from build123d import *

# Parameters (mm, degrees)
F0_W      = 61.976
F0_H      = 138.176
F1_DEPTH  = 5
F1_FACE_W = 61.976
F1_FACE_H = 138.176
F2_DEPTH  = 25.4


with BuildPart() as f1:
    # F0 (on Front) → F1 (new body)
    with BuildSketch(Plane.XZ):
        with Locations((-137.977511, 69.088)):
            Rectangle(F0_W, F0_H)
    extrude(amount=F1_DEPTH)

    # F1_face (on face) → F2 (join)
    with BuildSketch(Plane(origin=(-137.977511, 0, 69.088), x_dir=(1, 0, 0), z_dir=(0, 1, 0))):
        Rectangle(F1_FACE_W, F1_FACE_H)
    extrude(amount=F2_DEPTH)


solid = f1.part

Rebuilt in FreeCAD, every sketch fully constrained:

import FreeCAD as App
import Part
import Sketcher
from FreeCAD import Vector
Q = App.Units.Quantity

doc = App.newDocument("Part")
body = doc.addObject("PartDesign::Body", "Body")

# Sketch on XZ plane
sketch1 = doc.addObject("Sketcher::SketchObject", "Sketch")
body.addObject(sketch1)
sketch1.AttachmentSupport = (doc.XZ_Plane, [""])
sketch1.MapMode = "FlatFace"
sketch1.addGeometry(Part.LineSegment(Vector(-169, 138, 0), Vector(-169, 0, 0)), False)
sketch1.addGeometry(Part.LineSegment(Vector(-169, 0, 0), Vector(-107, 0, 0)), False)
sketch1.addGeometry(Part.LineSegment(Vector(-107, 0, 0), Vector(-107, 138, 0)), False)
sketch1.addGeometry(Part.LineSegment(Vector(-107, 138, 0), Vector(-169, 138, 0)), False)
sketch1.addConstraint(Sketcher.Constraint("Coincident", 0, 2, 1, 1))
sketch1.addConstraint(Sketcher.Constraint("Coincident", 1, 2, 2, 1))
sketch1.addConstraint(Sketcher.Constraint("Coincident", 2, 2, 3, 1))
sketch1.addConstraint(Sketcher.Constraint("Coincident", 3, 2, 0, 1))
sketch1.addConstraint(Sketcher.Constraint("Vertical", 0))
sketch1.addConstraint(Sketcher.Constraint("Horizontal", 1))
sketch1.addConstraint(Sketcher.Constraint("Vertical", 2))
sketch1.addConstraint(Sketcher.Constraint("Horizontal", 3))
sketch1.addConstraint(Sketcher.Constraint("PointOnObject", 0, 2, -1))
sketch1.addConstraint(Sketcher.Constraint("DistanceX", 1, 1, 1, 2, Q("2.44 in")))
sketch1.addConstraint(Sketcher.Constraint("DistanceY", 0, 2, 0, 1, Q("5.44 in")))
sketch1.addConstraint(Sketcher.Constraint("DistanceX", 0, 2, -1, 1, Q("168.965511 mm")))
pad1 = doc.addObject("PartDesign::Pad", "Pad")
body.addObject(pad1)
pad1.Profile = sketch1
pad1.Length = 5

# Sketch on XZ plane
sketch2 = doc.addObject("Sketcher::SketchObject", "Sketch001")
body.addObject(sketch2)
sketch2.AttachmentSupport = (doc.XZ_Plane, [""])
sketch2.MapMode = "FlatFace"
sketch2.addGeometry(Part.LineSegment(Vector(-169, 0, 0), Vector(-169, 138, 0)), False)
sketch2.addGeometry(Part.LineSegment(Vector(-169, 138, 0), Vector(-107, 138, 0)), False)
sketch2.addGeometry(Part.LineSegment(Vector(-107, 138, 0), Vector(-107, 0, 0)), False)
sketch2.addGeometry(Part.LineSegment(Vector(-107, 0, 0), Vector(-169, 0, 0)), False)
sketch2.addConstraint(Sketcher.Constraint("Coincident", 0, 2, 1, 1))
sketch2.addConstraint(Sketcher.Constraint("Coincident", 1, 2, 2, 1))
sketch2.addConstraint(Sketcher.Constraint("Coincident", 2, 2, 3, 1))
sketch2.addConstraint(Sketcher.Constraint("Coincident", 3, 2, 0, 1))
sketch2.addConstraint(Sketcher.Constraint("Vertical", 0))
sketch2.addConstraint(Sketcher.Constraint("Horizontal", 1))
sketch2.addConstraint(Sketcher.Constraint("Vertical", 2))
sketch2.addConstraint(Sketcher.Constraint("Horizontal", 3))
sketch2.addConstraint(Sketcher.Constraint("PointOnObject", 2, 2, -1))
sketch2.addConstraint(Sketcher.Constraint("DistanceX", 1, 1, 1, 2, Q("2.44 in")))
sketch2.addConstraint(Sketcher.Constraint("DistanceY", 0, 1, 0, 2, Q("5.44 in")))
sketch2.addConstraint(Sketcher.Constraint("DistanceX", 0, 2, -1, 1, Q("168.965511 mm")))
pad2 = doc.addObject("PartDesign::Pad", "Pad001")
body.addObject(pad2)
pad2.Profile = sketch2
pad2.Length = Q("1 in")
pad2.Reversed = True

doc.recompute()
